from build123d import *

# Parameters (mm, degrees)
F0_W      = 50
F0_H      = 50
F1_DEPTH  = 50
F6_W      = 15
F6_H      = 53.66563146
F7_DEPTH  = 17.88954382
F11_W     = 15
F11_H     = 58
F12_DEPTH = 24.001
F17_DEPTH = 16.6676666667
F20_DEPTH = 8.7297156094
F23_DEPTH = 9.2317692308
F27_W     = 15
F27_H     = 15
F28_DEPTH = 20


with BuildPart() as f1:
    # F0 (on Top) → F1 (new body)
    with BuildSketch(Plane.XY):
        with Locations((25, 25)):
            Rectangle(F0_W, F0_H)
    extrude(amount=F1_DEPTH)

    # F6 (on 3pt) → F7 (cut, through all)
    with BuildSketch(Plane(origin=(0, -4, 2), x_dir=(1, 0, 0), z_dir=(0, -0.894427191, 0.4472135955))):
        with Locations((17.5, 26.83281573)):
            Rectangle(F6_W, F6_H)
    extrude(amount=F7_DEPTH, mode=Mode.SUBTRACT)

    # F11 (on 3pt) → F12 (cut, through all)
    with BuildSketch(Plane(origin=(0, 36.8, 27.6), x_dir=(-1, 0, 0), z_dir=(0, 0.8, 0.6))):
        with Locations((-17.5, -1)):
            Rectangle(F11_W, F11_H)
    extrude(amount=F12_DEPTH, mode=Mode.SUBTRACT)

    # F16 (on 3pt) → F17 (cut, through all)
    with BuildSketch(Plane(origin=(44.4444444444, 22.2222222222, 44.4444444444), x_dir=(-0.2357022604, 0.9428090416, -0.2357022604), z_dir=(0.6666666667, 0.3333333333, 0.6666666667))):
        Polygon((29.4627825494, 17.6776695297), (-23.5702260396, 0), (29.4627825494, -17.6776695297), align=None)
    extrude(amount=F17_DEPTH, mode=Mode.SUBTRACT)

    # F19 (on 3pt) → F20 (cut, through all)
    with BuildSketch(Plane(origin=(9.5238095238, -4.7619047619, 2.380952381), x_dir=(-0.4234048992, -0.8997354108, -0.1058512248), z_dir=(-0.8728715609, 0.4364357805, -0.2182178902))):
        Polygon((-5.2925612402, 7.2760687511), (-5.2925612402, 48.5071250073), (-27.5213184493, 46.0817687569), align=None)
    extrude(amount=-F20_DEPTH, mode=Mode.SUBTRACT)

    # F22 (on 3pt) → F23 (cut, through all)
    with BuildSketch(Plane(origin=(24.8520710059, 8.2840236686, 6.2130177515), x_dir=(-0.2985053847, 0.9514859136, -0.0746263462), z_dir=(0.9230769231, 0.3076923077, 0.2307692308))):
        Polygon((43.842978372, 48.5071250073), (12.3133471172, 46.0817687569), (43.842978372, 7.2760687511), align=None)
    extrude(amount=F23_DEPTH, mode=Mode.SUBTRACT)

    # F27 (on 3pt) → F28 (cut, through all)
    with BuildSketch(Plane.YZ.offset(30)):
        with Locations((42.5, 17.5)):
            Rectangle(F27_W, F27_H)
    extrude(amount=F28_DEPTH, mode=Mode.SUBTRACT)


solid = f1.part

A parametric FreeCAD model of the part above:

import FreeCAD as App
import Part
import Sketcher
Q = App.Units.Quantity


def add_polygon(sketch, points):
    """Adds a closed chain of lines whose ends are joined by coincident constraints."""
    first, n = sketch.GeometryCount, len(points)
    for a, b in zip(points, points[1:] + points[:1]):
        sketch.addGeometry(Part.LineSegment(App.Vector(*a, 0), App.Vector(*b, 0)), False)
    for i in range(n):
        sketch.addConstraint(Sketcher.Constraint("Coincident", first + i, 2, first + (i + 1) % n, 1))

doc = App.newDocument("Part")
params = doc.addObject("Spreadsheet::Sheet", "Params")
for row, (alias, value) in enumerate([
    ("sketch1_width", "50 mm"),
    ("pad1_length", "50 mm"),
    ("sketch2_width", "15 mm"),
    ("sketch3_width", "15 mm"),
    ("sketch3_height", "58 mm"),
    ("pocket4_length", "8.729716 mm"),
    ("sketch6_length", "50 mm"),
    ("pocket5_length", "9.231769 mm"),
    ("sketch7_width", "15 mm"),
], start=1):
    params.set(f"A{row}", alias)
    params.set(f"B{row}", "=" + value)
    params.setAlias(f"B{row}", alias)

body = doc.addObject("PartDesign::Body", "Body")

sketch1 = body.newObject("Sketcher::SketchObject", "Sketch")
sketch1.AttachmentSupport = (doc.getObject("XY_Plane"), [""])
sketch1.MapMode = "FlatFace"
add_polygon(sketch1, [(0, 50), (0, 0), (50, 0), (50, 50)])
sketch1.addConstraint(Sketcher.Constraint("Vertical", 0))
sketch1.addConstraint(Sketcher.Constraint("Horizontal", 1))
sketch1.addConstraint(Sketcher.Constraint("Vertical", 2))
sketch1.addConstraint(Sketcher.Constraint("Horizontal", 3))
sketch1.addConstraint(Sketcher.Constraint("Coincident", 0, 2, -1, 1))
sketch1.addConstraint(Sketcher.Constraint("Equal", 3, 0))
sketch1.addConstraint(Sketcher.Constraint("DistanceX", 1, 1, 1, 2, Q("50 mm")))
sketch1.setExpression("Constraints[10]", "Params.sketch1_width")
pad1 = body.newObject("PartDesign::Pad", "Pad")
pad1.Profile = sketch1
pad1.setExpression("Length", "Params.pad1_length")

sketch2 = body.newObject("Sketcher::SketchObject", "Sketch001")
sketch2.Placement = App.Placement(App.Vector(0, -4, 2), App.Rotation(App.Vector(1, 0, 0), App.Vector(0, 0.447213595, 0.894427191), App.Vector(0, -0.894427191, 0.447213595), "ZXY"))
add_polygon(sketch2, [(10, 54), (10, 0), (25, 0), (25, 54)])
sketch2.addConstraint(Sketcher.Constraint("Vertical", 0))
sketch2.addConstraint(Sketcher.Constraint("Horizontal", 1))
sketch2.addConstraint(Sketcher.Constraint("Vertical", 2))
sketch2.addConstraint(Sketcher.Constraint("Horizontal", 3))
sketch2.addConstraint(Sketcher.Constraint("PointOnObject", 0, 2, -1))
sketch2.addConstraint(Sketcher.Constraint("DistanceX", 1, 1, 1, 2, Q("15 mm")))
sketch2.addConstraint(Sketcher.Constraint("DistanceX", -1, 1, 0, 2, Q("10 mm")))
sketch2.addConstraint(Sketcher.Constraint("DistanceY", 0, 2, 0, 1, Q("53.665631 mm")))
sketch2.setExpression("Constraints[9]", "Params.sketch2_width")
pocket1 = body.newObject("PartDesign::Pocket", "Pocket")
pocket1.Profile = sketch2
pocket1.Type = "ThroughAll"
pocket1.Reversed = True

sketch3 = body.newObject("Sketcher::SketchObject", "Sketch002")
sketch3.Placement = App.Placement(App.Vector(0, 36.8, 27.6), App.Rotation(App.Vector(-1, 0, 0), App.Vector(0, -0.6, 0.8), App.Vector(0, 0.8, 0.6), "ZXY"))
add_polygon(sketch3, [(-25, 28), (-25, -30), (-10, -30), (-10, 28)])
sketch3.addConstraint(Sketcher.Constraint("Vertical", 0))
sketch3.addConstraint(Sketcher.Constraint("Horizontal", 1))
sketch3.addConstraint(Sketcher.Constraint("Vertical", 2))
sketch3.addConstraint(Sketcher.Constraint("Horizontal", 3))
sketch3.addConstraint(Sketcher.Constraint("DistanceX", 1, 1, 1, 2, Q("15 mm")))
sketch3.addConstraint(Sketcher.Constraint("DistanceY", 0, 2, 0, 1, Q("58 mm")))
sketch3.addConstraint(Sketcher.Constraint("DistanceX", 0, 2, -1, 1, Q("25 mm")))
sketch3.addConstraint(Sketcher.Constraint("DistanceY", 0, 2, -1, 1, Q("30 mm")))
sketch3.setExpression("Constraints[8]", "Params.sketch3_width")
sketch3.setExpression("Constraints[9]", "Params.sketch3_height")
pocket2 = body.newObject("PartDesign::Pocket", "Pocket001")
pocket2.Profile = sketch3
pocket2.Type = "ThroughAll"
pocket2.Reversed = True

sketch4 = body.newObject("Sketcher::SketchObject", "Sketch003")
sketch4.Placement = App.Placement(App.Vector(44.444444, 22.222222, 44.444444), App.Rotation(App.Vector(-0.23570226, 0.942809042, -0.23570226), App.Vector(-0.707106782, 0, 0.707106782), App.Vector(0.666666667, 0.333333333, 0.666666667), "ZXY"))
add_polygon(sketch4, [(29, 18), (-24, 0), (29, -18)])
sketch4.addConstraint(Sketcher.Constraint("Vertical", 2))
sketch4.addConstraint(Sketcher.Constraint("PointOnObject", 0, 2, -1))
sketch4.addConstraint(Sketcher.Constraint("Equal", 0, 1))
sketch4.addConstraint(Sketcher.Constraint("Distance", 0, Q("55.901699 mm")))
sketch4.addConstraint(Sketcher.Constraint("DistanceY", 2, 1, 2, 2, Q("35.355339 mm")))
sketch4.addConstraint(Sketcher.Constraint("DistanceX", 0, 2, -1, 1, Q("23.570226 mm")))
pocket3 = body.newObject("PartDesign::Pocket", "Pocket002")
pocket3.Profile = sketch4
pocket3.Type = "ThroughAll"
pocket3.Reversed = True

sketch5 = body.newObject("Sketcher::SketchObject", "Sketch004")
sketch5.Placement = App.Placement(App.Vector(9.52381, -4.761905, 2.380952), App.Rotation(App.Vector(-0.423404899, -0.899735411, -0.105851225), App.Vector(-0.242535625, 0, 0.9701425), App.Vector(-0.872871561, 0.436435781, -0.21821789), "ZXY"))
add_polygon(sketch5, [(-5, 7), (-5, 49), (-28, 46)])
sketch5.addConstraint(Sketcher.Constraint("Vertical", 0))
sketch5.addConstraint(Sketcher.Constraint("DistanceY", 2, 2, 1, 2, Q("38.8057 mm")))
sketch5.addConstraint(Sketcher.Constraint("Distance", 1, Q("22.36068 mm")))
sketch5.addConstraint(Sketcher.Constraint("Distance", 2, Q("44.72136 mm")))
sketch5.addConstraint(Sketcher.Constraint("DistanceX", 0, 2, -1, 1, Q("5.292561 mm")))
sketch5.addConstraint(Sketcher.Constraint("DistanceY", -1, 1, 1, 2, Q("46.081769 mm")))
pocket4 = body.newObject("PartDesign::Pocket", "Pocket003")
pocket4.Profile = sketch5
pocket4.setExpression("Length", "Params.pocket4_length")

sketch6 = body.newObject("Sketcher::SketchObject", "Sketch005")
sketch6.Placement = App.Placement(App.Vector(24.852071, 8.284024, 6.213018), App.Rotation(App.Vector(-0.298505385, 0.951485914, -0.074626346), App.Vector(-0.242535625, 0, 0.970142501), App.Vector(0.923076923, 0.307692308, 0.230769231), "ZXY"))
add_polygon(sketch6, [(44, 49), (12, 46), (44, 7)])
sketch6.addConstraint(Sketcher.Constraint("Vertical", 2))
sketch6.addConstraint(Sketcher.Constraint("Distance", 1, Q("50 mm")))
sketch6.addConstraint(Sketcher.Constraint("DistanceY", 1, 2, 0, 2, Q("38.8057 mm")))
sketch6.addConstraint(Sketcher.Constraint("DistanceY", 2, 1, 2, 2, Q("41.231056 mm")))
sketch6.addConstraint(Sketcher.Constraint("DistanceY", -1, 1, 0, 2, Q("46.081769 mm")))
sketch6.addConstraint(Sketcher.Constraint("DistanceX", -1, 1, 1, 2, Q("43.842978 mm")))
sketch6.setExpression("Constraints[4]", "Params.sketch6_length")
pocket5 = body.newObject("PartDesign::Pocket", "Pocket004")
pocket5.Profile = sketch6
pocket5.setExpression("Length", "Params.pocket5_length")
pocket5.Reversed = True

sketch7 = body.newObject("Sketcher::SketchObject", "Sketch006")
sketch7.AttachmentSupport = (doc.getObject("YZ_Plane"), [""])
sketch7.MapMode = "FlatFace"
sketch7.AttachmentOffset = App.Placement(App.Vector(0, 0, 30), App.Rotation())
add_polygon(sketch7, [(35, 25), (35, 10), (50, 10), (50, 25)])
sketch7.addConstraint(Sketcher.Constraint("Vertical", 0))
sketch7.addConstraint(Sketcher.Constraint("Horizontal", 1))
sketch7.addConstraint(Sketcher.Constraint("Vertical", 2))
sketch7.addConstraint(Sketcher.Constraint("Horizontal", 3))
sketch7.addConstraint(Sketcher.Constraint("Equal", 3, 0))
sketch7.addConstraint(Sketcher.Constraint("DistanceX", 1, 1, 1, 2, Q("15 mm")))
sketch7.addConstraint(Sketcher.Constraint("DistanceX", -1, 1, 0, 2, Q("35 mm")))
sketch7.addConstraint(Sketcher.Constraint("DistanceY", -1, 1, 0, 2, Q("10 mm")))
sketch7.setExpression("Constraints[9]", "Params.sketch7_width")
pocket6 = body.newObject("PartDesign::Pocket", "Pocket005")
pocket6.Profile = sketch7
pocket6.Type = "ThroughAll"
pocket6.Reversed = True

doc.recompute()
